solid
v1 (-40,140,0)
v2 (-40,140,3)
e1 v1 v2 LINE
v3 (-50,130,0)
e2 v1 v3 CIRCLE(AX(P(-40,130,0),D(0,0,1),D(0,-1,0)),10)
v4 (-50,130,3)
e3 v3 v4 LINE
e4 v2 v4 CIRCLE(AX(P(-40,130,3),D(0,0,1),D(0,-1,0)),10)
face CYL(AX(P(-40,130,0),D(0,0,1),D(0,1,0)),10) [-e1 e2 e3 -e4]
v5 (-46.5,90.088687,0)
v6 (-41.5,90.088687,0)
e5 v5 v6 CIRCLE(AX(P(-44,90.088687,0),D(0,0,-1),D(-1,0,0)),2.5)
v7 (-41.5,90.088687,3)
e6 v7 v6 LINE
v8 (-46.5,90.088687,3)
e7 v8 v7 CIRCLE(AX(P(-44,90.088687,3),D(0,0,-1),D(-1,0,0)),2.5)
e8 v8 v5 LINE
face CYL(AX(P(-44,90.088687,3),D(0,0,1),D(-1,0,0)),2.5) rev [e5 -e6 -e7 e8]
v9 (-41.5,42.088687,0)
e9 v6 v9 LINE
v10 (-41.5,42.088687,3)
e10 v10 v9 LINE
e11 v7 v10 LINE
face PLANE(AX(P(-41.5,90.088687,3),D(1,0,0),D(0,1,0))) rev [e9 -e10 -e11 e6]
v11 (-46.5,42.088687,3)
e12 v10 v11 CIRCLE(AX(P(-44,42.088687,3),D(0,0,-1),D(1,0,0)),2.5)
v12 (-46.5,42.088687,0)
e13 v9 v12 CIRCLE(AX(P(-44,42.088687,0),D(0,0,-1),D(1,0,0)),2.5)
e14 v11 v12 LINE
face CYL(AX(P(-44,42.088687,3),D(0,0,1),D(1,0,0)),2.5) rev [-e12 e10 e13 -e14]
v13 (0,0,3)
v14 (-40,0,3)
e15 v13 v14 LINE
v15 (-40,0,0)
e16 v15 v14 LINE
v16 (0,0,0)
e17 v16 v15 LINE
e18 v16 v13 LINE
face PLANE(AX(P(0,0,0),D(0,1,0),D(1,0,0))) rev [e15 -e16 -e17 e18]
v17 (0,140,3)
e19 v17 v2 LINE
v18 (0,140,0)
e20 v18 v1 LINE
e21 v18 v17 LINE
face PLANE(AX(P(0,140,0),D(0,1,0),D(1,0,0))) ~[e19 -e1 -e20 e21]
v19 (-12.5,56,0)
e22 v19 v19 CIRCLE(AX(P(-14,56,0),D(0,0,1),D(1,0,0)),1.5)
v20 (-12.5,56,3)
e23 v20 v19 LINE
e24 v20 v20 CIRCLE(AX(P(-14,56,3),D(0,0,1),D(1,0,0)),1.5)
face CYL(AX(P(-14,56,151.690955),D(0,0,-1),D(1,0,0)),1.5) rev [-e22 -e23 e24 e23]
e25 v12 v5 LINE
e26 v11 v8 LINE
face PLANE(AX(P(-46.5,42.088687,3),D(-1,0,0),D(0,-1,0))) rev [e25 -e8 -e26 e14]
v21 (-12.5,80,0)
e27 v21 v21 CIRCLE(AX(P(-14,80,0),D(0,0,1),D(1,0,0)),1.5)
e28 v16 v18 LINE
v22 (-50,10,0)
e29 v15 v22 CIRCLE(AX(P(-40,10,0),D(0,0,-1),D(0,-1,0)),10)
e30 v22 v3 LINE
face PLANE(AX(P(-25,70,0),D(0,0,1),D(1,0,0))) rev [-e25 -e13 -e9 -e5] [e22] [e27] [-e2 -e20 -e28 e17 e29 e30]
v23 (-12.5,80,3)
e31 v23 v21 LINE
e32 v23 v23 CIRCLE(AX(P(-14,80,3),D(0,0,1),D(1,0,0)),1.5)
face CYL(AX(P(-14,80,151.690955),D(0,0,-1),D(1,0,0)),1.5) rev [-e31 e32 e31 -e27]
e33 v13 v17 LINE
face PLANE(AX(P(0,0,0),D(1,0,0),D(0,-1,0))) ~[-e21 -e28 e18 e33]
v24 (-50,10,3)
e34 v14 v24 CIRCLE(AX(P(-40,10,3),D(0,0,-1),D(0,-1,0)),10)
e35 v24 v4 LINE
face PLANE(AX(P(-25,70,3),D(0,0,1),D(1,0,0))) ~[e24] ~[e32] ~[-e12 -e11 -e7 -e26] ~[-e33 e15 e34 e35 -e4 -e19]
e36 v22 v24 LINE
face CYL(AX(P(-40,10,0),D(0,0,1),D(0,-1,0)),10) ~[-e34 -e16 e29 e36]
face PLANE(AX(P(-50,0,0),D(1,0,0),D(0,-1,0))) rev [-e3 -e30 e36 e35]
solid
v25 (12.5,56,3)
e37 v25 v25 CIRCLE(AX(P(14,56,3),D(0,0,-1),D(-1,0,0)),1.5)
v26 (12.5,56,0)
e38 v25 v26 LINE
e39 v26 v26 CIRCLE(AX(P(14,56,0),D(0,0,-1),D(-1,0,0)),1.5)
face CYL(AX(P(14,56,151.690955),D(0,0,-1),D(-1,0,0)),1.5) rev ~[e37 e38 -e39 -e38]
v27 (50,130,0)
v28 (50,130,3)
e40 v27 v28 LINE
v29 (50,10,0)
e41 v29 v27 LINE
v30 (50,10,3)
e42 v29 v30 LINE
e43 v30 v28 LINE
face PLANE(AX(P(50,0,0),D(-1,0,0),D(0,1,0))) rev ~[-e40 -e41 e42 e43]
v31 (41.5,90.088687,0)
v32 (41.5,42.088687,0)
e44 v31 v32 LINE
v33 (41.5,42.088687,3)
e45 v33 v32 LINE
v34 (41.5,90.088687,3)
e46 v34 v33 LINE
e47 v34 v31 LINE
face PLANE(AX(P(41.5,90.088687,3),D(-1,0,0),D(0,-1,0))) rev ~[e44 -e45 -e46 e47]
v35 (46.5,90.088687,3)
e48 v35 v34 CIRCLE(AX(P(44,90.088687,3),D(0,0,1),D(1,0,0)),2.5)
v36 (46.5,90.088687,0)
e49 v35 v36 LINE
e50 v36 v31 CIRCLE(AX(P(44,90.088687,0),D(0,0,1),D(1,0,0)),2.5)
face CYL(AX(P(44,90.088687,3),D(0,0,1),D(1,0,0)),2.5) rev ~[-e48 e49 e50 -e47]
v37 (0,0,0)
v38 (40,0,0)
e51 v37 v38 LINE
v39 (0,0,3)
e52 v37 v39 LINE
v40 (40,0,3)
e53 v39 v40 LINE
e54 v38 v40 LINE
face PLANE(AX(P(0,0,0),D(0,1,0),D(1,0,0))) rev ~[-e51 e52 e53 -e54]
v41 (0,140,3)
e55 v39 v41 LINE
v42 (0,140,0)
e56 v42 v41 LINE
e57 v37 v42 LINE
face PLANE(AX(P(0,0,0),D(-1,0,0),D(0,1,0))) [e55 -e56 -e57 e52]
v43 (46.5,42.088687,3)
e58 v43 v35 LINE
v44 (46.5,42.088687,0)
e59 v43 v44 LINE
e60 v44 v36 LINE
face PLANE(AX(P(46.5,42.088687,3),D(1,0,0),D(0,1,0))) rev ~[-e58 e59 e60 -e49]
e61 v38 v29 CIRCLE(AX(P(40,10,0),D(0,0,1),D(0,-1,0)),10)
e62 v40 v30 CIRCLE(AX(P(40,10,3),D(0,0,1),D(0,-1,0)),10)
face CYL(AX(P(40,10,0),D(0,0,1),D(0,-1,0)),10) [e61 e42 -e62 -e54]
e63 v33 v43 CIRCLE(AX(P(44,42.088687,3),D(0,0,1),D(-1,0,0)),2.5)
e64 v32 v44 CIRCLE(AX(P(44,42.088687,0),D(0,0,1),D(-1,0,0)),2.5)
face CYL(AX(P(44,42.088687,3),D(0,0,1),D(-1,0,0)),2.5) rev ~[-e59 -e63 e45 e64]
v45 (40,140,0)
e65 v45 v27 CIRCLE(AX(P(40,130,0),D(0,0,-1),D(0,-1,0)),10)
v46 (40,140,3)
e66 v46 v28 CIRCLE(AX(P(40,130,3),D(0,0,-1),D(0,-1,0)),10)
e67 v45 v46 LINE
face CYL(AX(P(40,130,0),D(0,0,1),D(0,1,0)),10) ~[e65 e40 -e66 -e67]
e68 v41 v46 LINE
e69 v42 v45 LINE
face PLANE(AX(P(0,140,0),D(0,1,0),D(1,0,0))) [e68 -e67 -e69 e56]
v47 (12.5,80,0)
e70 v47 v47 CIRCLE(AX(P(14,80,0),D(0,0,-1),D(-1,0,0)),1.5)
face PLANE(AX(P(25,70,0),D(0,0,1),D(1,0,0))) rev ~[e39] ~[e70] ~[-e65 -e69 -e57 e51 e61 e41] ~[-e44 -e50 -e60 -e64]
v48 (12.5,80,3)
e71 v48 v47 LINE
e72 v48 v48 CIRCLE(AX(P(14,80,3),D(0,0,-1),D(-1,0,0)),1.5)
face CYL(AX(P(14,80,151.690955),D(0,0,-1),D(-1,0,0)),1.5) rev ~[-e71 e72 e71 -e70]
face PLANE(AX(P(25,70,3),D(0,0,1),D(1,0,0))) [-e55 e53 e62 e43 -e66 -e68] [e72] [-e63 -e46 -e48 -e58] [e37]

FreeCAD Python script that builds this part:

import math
import FreeCAD as App
import Part
import Sketcher
from FreeCAD import Vector
Q = App.Units.Quantity


def edges_at(feature, points):
    """Names of the edges that pass closest to the given points."""
    edges = feature.Shape.Edges
    near = lambda p: min(range(len(edges)), key=lambda i: edges[i].distToShape(Part.Vertex(*p))[0])
    return sorted({f"Edge{near(p) + 1}" for p in points})

doc = App.newDocument("Part")
body = doc.addObject("PartDesign::Body", "Body")

# Sketch on XY plane
sketch1 = body.newObject("Sketcher::SketchObject", "Sketch")
sketch1.AttachmentSupport = (doc.getObject("XY_Plane"), [""])
sketch1.MapMode = "FlatFace"
sketch1.addGeometry([
    Part.LineSegment(Vector(0, 140, 0), Vector(0, 0, 0)),
    Part.LineSegment(Vector(0, 0, 0), Vector(50, 0, 0)),
    Part.LineSegment(Vector(50, 0, 0), Vector(50, 140, 0)),
    Part.LineSegment(Vector(50, 140, 0), Vector(0, 140, 0)),
], False)
sketch1.addConstraint([
    Sketcher.Constraint("Coincident", 0, 2, 1, 1),
    Sketcher.Constraint("Coincident", 1, 2, 2, 1),
    Sketcher.Constraint("Coincident", 2, 2, 3, 1),
    Sketcher.Constraint("Coincident", 3, 2, 0, 1),
    Sketcher.Constraint("Vertical", 0),
    Sketcher.Constraint("Horizontal", 1),
    Sketcher.Constraint("Vertical", 2),
    Sketcher.Constraint("Horizontal", 3),
    Sketcher.Constraint("Coincident", 0, 2, -1, 1),
    Sketcher.Constraint("DistanceX", 1, 1, 1, 2, Q("50 mm")),
    Sketcher.Constraint("DistanceY", 0, 2, 0, 1, Q("140 mm")),
])
pad1 = body.newObject("PartDesign::Pad", "Pad")
pad1.Profile = sketch1
pad1.Length = 3

# Sketch on XY plane
sketch2 = body.newObject("Sketcher::SketchObject", "Sketch001")
sketch2.AttachmentSupport = (doc.getObject("XY_Plane"), [""])
sketch2.MapMode = "FlatFace"
sketch2.AttachmentOffset = App.Placement(Vector(0, 0, 3), App.Rotation())
sketch2.addGeometry([
    Part.Circle(Vector(14, 80, 0), Vector(0, 0, 1), 1.5),
    Part.Circle(Vector(14, 56, 0), Vector(0, 0, 1), 1.5),
], False)
sketch2.addConstraint([
    Sketcher.Constraint("Equal", 0, 1),
    Sketcher.Constraint("Vertical", 0, 3, 1, 3),
    Sketcher.Constraint("Diameter", 0, Q("3 mm")),
    Sketcher.Constraint("DistanceX", -1, 1, 0, 3, Q("14 mm")),
    Sketcher.Constraint("DistanceY", -1, 1, 0, 3, Q("80 mm")),
    Sketcher.Constraint("DistanceY", -1, 1, 1, 3, Q("56 mm")),
])
doc.recompute()
hole = body.newObject("PartDesign::Hole", "Hole")
hole.Profile = sketch2
hole.ThreadType = "None"
hole.Diameter = 3
hole.DepthType = "ThroughAll"

# Sketch on XY plane
sketch3 = body.newObject("Sketcher::SketchObject", "Sketch002")
sketch3.AttachmentSupport = (doc.getObject("XY_Plane"), [""])
sketch3.MapMode = "FlatFace"
sketch3.AttachmentOffset = App.Placement(Vector(0, 0, 3), App.Rotation())
sketch3.addGeometry([
    Part.ArcOfCircle(Part.Circle(Vector(44, 90.088687, 0), Vector(0, 0, 1), 2.5), math.radians(0), math.radians(180)),
    Part.LineSegment(Vector(41.5, 90.088687, 0), Vector(41.5, 42.088687, 0)),
    Part.ArcOfCircle(Part.Circle(Vector(44, 42.088687, 0), Vector(0, 0, 1), 2.5), math.radians(180), math.radians(360)),
    Part.LineSegment(Vector(46.5, 42.088687, 0), Vector(46.5, 90.088687, 0)),
], False)
sketch3.addConstraint([
    Sketcher.Constraint("Tangent", 0, 2, 1, 1),
    Sketcher.Constraint("Tangent", 1, 2, 2, 1),
    Sketcher.Constraint("Tangent", 2, 2, 3, 1),
    Sketcher.Constraint("Tangent", 3, 2, 0, 1),
    Sketcher.Constraint("Vertical", 1),
    Sketcher.Constraint("Vertical", 3),
    Sketcher.Constraint("Radius", 0, Q("2.5 mm")),
    Sketcher.Constraint("DistanceY", 1, 2, 1, 1, Q("48 mm")),
    Sketcher.Constraint("DistanceX", -1, 1, 0, 3, Q("44 mm")),
    Sketcher.Constraint("DistanceY", -1, 1, 0, 3, Q("90.088687 mm")),
])
pocket1 = body.newObject("PartDesign::Pocket", "Pocket")
pocket1.Profile = sketch3
pocket1.Length = 40.836263
doc.recompute()

fillet = body.newObject("PartDesign::Fillet", "Fillet")
fillet.Base = (pocket1, edges_at(pocket1, [(50, 140, 1.5), (50, 0, 1.5)]))
fillet.Radius = 10
body2 = doc.addObject("PartDesign::Body", "Body001")
doc.recompute()

mirroring = doc.addObject("Part::Mirroring", "Mirroring")
mirroring.Source = body
mirroring.Base = Vector(0, 0, 0)
mirroring.Normal = Vector(1, 0, 0)
body2.BaseFeature = mirroring
doc.recompute()
mirroring.Visibility = False

doc.recompute()
